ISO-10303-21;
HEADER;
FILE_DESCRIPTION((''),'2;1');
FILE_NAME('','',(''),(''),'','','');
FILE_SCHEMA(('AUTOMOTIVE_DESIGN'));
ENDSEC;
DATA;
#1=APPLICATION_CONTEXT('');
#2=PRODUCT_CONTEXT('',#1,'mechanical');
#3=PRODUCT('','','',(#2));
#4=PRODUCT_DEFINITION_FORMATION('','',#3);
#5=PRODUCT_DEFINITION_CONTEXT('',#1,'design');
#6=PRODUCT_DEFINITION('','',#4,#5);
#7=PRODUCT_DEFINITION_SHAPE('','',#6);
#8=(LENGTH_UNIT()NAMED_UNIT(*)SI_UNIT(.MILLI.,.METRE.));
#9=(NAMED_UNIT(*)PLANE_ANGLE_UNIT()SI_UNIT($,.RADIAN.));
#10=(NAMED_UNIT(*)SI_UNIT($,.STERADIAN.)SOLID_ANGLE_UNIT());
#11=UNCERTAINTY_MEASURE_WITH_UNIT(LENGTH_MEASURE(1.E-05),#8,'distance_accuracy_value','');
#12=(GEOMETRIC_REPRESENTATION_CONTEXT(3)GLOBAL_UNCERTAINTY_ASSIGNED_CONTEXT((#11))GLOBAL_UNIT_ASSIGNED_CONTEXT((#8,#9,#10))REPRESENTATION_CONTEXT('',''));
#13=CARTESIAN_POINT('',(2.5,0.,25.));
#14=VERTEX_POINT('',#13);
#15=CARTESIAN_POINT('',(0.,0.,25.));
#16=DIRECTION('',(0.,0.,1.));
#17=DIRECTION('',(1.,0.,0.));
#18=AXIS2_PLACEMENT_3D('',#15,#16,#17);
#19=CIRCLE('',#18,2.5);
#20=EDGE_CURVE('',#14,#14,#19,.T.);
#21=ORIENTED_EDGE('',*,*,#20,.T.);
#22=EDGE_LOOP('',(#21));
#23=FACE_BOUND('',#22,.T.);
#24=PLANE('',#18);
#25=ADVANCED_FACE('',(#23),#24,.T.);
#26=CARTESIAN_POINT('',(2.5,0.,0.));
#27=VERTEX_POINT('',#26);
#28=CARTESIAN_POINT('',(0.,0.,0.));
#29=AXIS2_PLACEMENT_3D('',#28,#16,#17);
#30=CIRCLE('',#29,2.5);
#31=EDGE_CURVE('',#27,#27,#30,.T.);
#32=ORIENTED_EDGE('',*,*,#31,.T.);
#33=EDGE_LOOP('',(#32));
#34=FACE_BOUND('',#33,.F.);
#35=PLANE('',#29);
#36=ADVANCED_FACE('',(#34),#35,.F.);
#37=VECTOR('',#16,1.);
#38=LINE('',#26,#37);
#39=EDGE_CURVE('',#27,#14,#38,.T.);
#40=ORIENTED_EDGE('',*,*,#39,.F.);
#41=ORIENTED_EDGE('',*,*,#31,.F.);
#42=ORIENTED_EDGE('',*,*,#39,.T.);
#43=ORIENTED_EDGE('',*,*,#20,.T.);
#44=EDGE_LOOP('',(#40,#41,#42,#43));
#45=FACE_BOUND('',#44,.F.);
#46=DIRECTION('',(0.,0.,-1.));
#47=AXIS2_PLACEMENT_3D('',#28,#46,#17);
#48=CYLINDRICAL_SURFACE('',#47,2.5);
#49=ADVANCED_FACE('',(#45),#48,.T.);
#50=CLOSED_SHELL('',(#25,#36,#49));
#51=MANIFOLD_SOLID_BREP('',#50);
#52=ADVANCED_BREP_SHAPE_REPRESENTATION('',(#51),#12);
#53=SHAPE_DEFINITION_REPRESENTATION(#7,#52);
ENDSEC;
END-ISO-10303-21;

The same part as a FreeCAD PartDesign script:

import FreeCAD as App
import Part
import Sketcher

V = App.Vector

doc = App.newDocument("Part")
body = doc.addObject("PartDesign::Body", "Body")

# Sketch on XY plane
sketch1 = body.newObject("Sketcher::SketchObject", "Sketch")
sketch1.AttachmentSupport = (doc.getObject("XY_Plane"), [""])
sketch1.MapMode = "FlatFace"
sketch1.addGeometry(Part.Circle(V(0, 0, 0), V(0, 0, 1), 2.5), False)
sketch1.addConstraint([
    Sketcher.Constraint("Coincident", 0, 3, -1, 1),
    Sketcher.Constraint("Diameter", 0, 5.0),
])
pad1 = body.newObject("PartDesign::Pad", "Pad")
pad1.Profile = sketch1
pad1.Length = 25

doc.recompute()
